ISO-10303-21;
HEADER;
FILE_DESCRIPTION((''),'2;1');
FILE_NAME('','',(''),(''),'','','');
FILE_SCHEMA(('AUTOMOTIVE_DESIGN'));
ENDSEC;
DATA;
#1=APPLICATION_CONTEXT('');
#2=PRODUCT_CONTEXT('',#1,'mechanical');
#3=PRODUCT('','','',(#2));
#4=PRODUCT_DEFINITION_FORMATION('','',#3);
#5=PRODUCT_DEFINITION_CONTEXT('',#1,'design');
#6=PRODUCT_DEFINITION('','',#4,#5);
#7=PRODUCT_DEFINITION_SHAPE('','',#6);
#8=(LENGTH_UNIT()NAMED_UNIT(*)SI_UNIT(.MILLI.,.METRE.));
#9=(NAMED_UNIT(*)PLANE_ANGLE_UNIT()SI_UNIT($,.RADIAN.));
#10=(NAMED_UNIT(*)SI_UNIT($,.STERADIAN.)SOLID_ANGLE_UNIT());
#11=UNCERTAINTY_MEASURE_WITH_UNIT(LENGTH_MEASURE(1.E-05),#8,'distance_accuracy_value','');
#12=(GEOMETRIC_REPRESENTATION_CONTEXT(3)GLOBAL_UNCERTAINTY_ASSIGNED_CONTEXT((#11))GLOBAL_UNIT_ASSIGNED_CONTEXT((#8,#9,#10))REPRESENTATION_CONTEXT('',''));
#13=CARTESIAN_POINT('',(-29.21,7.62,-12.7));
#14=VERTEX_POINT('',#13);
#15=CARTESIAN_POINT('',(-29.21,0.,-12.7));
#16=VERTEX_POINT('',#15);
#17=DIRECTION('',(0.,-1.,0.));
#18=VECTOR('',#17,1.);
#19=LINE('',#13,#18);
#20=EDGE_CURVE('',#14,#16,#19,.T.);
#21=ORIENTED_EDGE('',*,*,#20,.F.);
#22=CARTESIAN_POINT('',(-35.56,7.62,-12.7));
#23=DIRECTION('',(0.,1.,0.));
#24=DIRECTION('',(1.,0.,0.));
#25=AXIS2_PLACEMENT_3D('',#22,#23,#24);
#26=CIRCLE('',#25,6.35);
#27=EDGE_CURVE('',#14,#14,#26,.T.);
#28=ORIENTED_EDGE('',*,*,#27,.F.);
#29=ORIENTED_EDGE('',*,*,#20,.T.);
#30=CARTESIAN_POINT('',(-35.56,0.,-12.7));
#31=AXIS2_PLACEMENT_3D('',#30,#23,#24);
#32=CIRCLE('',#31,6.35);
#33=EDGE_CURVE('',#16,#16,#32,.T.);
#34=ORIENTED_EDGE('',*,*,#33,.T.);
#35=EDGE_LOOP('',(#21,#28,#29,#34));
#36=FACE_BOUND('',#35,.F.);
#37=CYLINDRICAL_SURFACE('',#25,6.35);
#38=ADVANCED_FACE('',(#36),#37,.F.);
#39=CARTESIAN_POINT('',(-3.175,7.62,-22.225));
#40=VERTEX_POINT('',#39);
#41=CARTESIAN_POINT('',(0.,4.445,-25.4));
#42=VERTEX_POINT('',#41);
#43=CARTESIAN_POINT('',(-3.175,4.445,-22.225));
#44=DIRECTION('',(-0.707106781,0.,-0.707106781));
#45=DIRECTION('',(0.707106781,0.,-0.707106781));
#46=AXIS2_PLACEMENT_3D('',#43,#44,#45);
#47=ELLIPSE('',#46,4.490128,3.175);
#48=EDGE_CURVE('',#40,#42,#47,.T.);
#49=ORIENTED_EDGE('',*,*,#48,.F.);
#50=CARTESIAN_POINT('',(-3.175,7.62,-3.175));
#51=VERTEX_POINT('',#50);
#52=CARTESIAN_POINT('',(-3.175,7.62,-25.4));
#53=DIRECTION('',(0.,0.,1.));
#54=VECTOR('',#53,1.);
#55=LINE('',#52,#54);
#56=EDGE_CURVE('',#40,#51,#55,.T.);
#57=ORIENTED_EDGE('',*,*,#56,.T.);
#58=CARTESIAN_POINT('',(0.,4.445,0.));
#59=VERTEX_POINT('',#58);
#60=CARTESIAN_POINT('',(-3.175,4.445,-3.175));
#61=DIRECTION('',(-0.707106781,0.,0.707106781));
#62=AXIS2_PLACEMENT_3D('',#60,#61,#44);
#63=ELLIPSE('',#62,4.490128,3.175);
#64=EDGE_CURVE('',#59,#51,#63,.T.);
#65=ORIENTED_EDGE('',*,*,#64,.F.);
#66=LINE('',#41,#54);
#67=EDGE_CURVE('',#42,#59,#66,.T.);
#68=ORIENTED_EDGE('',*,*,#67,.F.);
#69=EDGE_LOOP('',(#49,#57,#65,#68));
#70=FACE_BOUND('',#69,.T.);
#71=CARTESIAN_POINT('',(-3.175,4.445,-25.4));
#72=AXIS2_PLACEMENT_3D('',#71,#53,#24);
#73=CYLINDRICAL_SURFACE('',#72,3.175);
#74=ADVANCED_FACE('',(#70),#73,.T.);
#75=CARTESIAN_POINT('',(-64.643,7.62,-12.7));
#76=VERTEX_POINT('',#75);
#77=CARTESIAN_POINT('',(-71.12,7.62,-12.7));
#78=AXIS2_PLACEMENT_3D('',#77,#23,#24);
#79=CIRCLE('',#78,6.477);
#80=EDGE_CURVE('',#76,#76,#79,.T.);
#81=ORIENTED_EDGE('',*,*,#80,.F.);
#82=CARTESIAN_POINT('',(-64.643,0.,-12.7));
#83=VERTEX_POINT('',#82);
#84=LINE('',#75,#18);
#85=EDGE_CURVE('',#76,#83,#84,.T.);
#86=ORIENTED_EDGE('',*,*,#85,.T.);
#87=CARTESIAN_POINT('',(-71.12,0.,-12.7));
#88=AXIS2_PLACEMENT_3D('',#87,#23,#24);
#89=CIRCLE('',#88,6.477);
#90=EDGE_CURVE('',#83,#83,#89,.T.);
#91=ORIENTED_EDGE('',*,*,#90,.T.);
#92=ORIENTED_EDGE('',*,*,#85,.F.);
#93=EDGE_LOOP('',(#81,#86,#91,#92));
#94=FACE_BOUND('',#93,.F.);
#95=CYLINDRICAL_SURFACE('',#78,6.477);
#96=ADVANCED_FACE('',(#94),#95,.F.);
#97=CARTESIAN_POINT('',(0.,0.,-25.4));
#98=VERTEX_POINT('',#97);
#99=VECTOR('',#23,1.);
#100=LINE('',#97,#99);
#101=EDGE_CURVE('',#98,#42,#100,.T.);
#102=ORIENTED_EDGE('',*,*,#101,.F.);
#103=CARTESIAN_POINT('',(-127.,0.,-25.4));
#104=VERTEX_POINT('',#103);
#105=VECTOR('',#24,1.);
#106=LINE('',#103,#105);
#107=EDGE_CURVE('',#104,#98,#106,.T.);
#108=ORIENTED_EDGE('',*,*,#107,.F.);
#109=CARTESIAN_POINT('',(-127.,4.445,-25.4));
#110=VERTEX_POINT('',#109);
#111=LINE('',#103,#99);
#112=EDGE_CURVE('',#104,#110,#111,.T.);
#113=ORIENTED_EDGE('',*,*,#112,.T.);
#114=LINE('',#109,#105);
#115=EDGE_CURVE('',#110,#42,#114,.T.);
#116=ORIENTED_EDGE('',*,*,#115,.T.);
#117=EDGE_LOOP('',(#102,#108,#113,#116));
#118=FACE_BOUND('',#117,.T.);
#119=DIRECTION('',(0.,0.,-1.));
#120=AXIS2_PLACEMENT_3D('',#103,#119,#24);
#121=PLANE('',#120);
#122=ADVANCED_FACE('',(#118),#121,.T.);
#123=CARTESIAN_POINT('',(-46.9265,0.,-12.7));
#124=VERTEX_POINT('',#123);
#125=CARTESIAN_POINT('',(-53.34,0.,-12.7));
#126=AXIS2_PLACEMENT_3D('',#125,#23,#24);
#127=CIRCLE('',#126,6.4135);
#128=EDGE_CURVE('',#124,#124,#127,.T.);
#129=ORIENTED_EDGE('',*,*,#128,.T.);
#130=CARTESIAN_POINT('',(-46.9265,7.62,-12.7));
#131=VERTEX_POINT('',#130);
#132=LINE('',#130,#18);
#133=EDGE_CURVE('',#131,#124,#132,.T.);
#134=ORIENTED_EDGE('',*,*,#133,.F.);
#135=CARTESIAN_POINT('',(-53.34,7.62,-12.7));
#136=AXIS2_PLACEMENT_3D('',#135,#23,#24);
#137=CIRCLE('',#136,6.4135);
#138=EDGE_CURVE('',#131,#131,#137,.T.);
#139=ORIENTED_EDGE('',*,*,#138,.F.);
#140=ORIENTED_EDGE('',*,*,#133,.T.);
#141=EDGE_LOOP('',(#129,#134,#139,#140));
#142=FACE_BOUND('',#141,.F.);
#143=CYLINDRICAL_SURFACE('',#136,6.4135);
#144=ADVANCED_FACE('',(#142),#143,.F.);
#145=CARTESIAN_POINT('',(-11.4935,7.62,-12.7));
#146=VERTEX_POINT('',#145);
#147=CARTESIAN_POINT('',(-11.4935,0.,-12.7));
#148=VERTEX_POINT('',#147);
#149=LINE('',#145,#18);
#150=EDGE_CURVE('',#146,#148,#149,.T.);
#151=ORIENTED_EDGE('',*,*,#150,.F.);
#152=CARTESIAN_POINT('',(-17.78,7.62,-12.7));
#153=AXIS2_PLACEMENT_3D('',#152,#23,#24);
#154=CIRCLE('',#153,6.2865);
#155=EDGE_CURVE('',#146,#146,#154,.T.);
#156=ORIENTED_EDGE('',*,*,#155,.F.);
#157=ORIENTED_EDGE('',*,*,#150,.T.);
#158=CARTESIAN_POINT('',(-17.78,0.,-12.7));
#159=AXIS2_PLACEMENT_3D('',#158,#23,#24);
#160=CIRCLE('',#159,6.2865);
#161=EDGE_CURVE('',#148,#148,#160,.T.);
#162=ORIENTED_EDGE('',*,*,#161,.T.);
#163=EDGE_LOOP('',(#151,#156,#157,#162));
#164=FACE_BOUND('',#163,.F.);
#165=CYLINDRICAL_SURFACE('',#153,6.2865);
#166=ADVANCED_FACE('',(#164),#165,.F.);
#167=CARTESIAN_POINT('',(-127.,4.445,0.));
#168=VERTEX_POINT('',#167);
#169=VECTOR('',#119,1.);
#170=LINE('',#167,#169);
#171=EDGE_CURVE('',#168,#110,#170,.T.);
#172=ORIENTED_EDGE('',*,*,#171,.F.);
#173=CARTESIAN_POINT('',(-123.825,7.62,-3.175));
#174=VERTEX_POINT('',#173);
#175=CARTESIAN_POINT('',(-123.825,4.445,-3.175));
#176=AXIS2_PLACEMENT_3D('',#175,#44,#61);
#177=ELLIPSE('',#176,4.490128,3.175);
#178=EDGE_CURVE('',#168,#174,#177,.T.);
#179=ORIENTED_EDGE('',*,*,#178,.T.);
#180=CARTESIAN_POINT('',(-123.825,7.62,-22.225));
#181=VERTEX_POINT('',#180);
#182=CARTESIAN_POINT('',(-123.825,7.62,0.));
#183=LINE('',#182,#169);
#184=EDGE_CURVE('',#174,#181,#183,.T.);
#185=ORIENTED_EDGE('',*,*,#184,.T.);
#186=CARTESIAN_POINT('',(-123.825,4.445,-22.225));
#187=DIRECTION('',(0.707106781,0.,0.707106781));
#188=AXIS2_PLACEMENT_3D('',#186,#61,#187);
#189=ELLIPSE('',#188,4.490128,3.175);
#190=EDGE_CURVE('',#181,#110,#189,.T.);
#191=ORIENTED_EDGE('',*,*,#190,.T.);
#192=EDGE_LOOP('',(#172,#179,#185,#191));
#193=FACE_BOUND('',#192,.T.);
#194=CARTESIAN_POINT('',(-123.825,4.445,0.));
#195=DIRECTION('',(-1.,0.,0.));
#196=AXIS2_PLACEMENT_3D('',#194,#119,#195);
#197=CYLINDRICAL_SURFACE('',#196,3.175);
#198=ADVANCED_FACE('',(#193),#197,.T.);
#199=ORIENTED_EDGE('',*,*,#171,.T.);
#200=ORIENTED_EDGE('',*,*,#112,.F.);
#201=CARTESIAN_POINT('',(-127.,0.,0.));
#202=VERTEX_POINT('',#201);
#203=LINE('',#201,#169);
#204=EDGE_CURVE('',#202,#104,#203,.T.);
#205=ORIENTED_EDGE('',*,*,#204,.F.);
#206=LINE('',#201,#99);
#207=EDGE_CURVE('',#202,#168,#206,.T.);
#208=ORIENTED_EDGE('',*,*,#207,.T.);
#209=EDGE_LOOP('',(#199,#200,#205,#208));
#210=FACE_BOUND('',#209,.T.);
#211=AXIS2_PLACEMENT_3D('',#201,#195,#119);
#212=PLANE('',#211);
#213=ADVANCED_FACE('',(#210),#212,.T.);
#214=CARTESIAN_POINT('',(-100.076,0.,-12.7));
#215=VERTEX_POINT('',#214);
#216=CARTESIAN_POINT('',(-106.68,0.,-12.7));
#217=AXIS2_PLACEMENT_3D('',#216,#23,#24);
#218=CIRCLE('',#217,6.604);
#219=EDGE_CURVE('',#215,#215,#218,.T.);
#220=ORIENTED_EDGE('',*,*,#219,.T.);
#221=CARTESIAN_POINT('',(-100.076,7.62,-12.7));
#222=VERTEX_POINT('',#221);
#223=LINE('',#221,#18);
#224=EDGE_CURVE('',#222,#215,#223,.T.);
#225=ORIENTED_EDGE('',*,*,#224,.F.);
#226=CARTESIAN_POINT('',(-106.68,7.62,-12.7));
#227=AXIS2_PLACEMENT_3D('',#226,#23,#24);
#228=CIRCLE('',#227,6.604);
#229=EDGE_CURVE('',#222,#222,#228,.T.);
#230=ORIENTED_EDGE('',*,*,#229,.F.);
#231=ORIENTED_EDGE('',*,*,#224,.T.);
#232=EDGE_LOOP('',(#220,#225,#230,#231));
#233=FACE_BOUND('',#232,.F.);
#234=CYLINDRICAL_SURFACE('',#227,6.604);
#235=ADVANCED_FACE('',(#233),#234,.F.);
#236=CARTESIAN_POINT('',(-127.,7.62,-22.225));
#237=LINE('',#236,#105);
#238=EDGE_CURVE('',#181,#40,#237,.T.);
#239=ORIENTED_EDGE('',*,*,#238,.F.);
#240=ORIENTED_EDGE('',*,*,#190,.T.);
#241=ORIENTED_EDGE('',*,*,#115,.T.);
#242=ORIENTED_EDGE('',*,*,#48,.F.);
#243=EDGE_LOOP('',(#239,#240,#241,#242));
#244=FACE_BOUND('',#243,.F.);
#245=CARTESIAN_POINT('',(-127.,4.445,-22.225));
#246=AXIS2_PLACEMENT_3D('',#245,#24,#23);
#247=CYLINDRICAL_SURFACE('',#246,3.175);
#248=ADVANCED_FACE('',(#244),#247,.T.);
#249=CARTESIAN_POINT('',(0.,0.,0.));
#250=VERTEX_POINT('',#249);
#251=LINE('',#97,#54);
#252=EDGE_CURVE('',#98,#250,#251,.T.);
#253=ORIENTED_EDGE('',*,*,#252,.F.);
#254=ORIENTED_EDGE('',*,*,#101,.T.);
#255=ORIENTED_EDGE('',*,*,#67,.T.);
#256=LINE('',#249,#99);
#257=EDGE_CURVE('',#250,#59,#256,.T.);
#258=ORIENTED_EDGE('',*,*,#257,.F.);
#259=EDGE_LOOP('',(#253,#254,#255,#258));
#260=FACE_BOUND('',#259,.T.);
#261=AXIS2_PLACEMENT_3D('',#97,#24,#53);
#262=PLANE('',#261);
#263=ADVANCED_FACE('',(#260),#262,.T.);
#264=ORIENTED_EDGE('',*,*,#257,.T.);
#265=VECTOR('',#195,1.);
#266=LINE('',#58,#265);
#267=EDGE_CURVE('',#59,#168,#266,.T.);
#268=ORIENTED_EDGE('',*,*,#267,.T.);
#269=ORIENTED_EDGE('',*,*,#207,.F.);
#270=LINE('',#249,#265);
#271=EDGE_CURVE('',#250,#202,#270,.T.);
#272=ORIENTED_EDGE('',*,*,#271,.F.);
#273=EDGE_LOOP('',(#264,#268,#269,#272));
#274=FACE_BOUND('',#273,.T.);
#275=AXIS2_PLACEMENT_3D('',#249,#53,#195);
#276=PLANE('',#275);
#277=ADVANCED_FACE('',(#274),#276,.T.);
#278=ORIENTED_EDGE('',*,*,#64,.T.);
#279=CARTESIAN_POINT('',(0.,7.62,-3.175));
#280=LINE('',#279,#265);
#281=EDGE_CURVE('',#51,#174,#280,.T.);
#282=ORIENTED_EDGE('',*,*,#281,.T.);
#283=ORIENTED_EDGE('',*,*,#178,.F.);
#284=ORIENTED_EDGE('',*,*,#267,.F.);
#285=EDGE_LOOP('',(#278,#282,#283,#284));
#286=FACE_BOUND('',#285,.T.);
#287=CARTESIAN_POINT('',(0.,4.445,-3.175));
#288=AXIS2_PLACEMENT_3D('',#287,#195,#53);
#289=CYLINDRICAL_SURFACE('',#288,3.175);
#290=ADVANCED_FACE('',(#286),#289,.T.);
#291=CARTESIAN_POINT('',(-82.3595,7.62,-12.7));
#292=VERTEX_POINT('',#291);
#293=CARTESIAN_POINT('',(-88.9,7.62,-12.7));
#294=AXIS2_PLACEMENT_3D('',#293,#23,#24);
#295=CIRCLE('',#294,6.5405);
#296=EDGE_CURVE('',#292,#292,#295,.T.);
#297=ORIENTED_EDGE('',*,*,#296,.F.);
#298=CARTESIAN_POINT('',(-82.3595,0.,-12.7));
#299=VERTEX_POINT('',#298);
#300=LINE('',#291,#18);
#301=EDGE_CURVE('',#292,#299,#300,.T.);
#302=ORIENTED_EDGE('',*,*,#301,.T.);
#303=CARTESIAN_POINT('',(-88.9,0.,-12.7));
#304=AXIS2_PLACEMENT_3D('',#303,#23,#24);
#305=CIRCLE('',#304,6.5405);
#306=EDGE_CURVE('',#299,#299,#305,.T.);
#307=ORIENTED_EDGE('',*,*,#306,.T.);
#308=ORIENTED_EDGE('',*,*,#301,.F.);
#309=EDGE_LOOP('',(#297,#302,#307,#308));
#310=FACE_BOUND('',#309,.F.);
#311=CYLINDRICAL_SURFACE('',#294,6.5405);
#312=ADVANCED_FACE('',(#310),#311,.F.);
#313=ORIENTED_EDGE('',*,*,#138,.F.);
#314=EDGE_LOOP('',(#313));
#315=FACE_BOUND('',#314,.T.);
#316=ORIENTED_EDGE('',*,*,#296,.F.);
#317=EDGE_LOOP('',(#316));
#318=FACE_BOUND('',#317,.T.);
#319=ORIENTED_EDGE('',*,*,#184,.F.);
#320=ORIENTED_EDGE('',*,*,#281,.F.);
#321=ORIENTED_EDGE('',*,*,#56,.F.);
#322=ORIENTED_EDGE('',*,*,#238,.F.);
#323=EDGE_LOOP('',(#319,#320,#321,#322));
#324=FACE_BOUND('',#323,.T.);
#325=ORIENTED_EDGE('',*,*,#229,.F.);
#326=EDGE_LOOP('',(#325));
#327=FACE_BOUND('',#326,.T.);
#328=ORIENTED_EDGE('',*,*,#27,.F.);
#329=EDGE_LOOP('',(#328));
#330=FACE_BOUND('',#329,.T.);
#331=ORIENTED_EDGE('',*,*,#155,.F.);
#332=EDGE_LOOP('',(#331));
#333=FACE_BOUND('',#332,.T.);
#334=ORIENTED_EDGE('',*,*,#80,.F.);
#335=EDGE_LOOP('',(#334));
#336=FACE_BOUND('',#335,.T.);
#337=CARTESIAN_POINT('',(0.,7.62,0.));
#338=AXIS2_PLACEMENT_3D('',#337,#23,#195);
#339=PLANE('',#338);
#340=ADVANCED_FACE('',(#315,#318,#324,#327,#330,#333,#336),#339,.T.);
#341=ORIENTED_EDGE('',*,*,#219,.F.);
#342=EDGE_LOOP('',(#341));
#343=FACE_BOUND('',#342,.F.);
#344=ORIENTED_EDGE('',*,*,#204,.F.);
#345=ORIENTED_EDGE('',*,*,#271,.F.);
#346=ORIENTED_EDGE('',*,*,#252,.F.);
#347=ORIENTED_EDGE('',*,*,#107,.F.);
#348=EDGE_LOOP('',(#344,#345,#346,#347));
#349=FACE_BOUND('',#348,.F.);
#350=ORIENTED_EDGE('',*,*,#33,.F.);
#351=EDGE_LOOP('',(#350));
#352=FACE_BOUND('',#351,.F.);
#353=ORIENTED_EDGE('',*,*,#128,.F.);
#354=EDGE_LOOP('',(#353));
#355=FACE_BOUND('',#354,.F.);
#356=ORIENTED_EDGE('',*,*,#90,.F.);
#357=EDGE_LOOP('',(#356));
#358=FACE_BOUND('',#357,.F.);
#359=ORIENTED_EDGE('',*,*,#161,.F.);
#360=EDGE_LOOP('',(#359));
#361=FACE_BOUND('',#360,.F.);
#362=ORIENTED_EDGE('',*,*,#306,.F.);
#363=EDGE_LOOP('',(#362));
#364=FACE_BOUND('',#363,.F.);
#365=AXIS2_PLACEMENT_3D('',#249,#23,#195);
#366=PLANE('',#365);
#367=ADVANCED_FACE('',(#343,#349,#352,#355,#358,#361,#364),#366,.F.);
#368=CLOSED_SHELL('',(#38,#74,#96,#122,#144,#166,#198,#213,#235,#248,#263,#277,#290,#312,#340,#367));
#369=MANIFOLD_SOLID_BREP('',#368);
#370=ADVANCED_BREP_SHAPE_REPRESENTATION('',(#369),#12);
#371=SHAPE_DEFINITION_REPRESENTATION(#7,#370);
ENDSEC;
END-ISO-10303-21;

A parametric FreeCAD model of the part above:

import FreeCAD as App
import Part
import Sketcher
from FreeCAD import Vector
Q = App.Units.Quantity


def edges_at(feature, points):
    """Names of the edges that pass closest to the given points."""
    edges = feature.Shape.Edges
    near = lambda p: min(range(len(edges)), key=lambda i: edges[i].distToShape(Part.Vertex(*p))[0])
    return sorted({f"Edge{near(p) + 1}" for p in points})

doc = App.newDocument("Part")
params = doc.addObject("Spreadsheet::Sheet", "Params")
for row, (alias, value) in enumerate([
    ("sketch1_width", "5 in"),
    ("sketch1_height", "1 in"),
    ("pad1_length", "0.3 in"),
    ("sketch2_diameter", "0.5 in"),
    ("sketch2_diameter2", "0.51 in"),
    ("sketch2_diameter3", "0.52 in"),
    ("sketch2_diameter4", "0.495 in"),
    ("sketch2_diameter5", "0.505 in"),
    ("fillet_radius", "0.125 in"),
], start=1):
    params.set(f"A{row}", alias)
    params.set(f"B{row}", "=" + value)
    params.setAlias(f"B{row}", alias)

body = doc.addObject("PartDesign::Body", "Body")

# Sketch on XZ plane
sketch1 = body.newObject("Sketcher::SketchObject", "Sketch")
sketch1.AttachmentSupport = (doc.getObject("XZ_Plane"), [""])
sketch1.MapMode = "FlatFace"
sketch1.addGeometry(Part.LineSegment(Vector(-127, 0, 0), Vector(0, 0, 0)), False)
sketch1.addGeometry(Part.LineSegment(Vector(0, 0, 0), Vector(0, -25.4, 0)), False)
sketch1.addGeometry(Part.LineSegment(Vector(0, -25.4, 0), Vector(-127, -25.4, 0)), False)
sketch1.addGeometry(Part.LineSegment(Vector(-127, -25.4, 0), Vector(-127, 0, 0)), False)
sketch1.addConstraint(Sketcher.Constraint("Coincident", 0, 2, 1, 1))
sketch1.addConstraint(Sketcher.Constraint("Coincident", 1, 2, 2, 1))
sketch1.addConstraint(Sketcher.Constraint("Coincident", 2, 2, 3, 1))
sketch1.addConstraint(Sketcher.Constraint("Coincident", 3, 2, 0, 1))
sketch1.addConstraint(Sketcher.Constraint("Horizontal", 0))
sketch1.addConstraint(Sketcher.Constraint("Vertical", 1))
sketch1.addConstraint(Sketcher.Constraint("Horizontal", 2))
sketch1.addConstraint(Sketcher.Constraint("Vertical", 3))
sketch1.addConstraint(Sketcher.Constraint("Coincident", 0, 2, -1, 1))
sketch1.addConstraint(Sketcher.Constraint("DistanceX", 0, 1, 0, 2, Q("5 in")))
sketch1.addConstraint(Sketcher.Constraint("DistanceY", 1, 2, 1, 1, Q("1 in")))
sketch1.setExpression("Constraints[9]", "Params.sketch1_width")
sketch1.setExpression("Constraints[10]", "Params.sketch1_height")
pad1 = body.newObject("PartDesign::Pad", "Pad")
pad1.Profile = sketch1
pad1.setExpression("Length", "Params.pad1_length")
pad1.Reversed = True

# Sketch on XZ plane
sketch2 = body.newObject("Sketcher::SketchObject", "Sketch001")
sketch2.AttachmentSupport = (doc.getObject("XZ_Plane"), [""])
sketch2.MapMode = "FlatFace"
sketch2.AttachmentOffset = App.Placement(Vector(0, 0, -0.3 * 25.4), App.Rotation())
sketch2.addGeometry(Part.Circle(Vector(-17.78, -12.7, 0), Vector(0, 0, 1), 6.2865), False)
sketch2.addGeometry(Part.Circle(Vector(-35.56, -12.7, 0), Vector(0, 0, 1), 6.35), False)
sketch2.addGeometry(Part.Circle(Vector(-53.34, -12.7, 0), Vector(0, 0, 1), 6.4135), False)
sketch2.addGeometry(Part.Circle(Vector(-71.12, -12.7, 0), Vector(0, 0, 1), 6.477), False)
sketch2.addGeometry(Part.Circle(Vector(-88.9, -12.7, 0), Vector(0, 0, 1), 6.5405), False)
sketch2.addGeometry(Part.Circle(Vector(-106.68, -12.7, 0), Vector(0, 0, 1), 6.604), False)
sketch2.addConstraint(Sketcher.Constraint("Horizontal", 0, 3, 1, 3))
sketch2.addConstraint(Sketcher.Constraint("Horizontal", 1, 3, 2, 3))
sketch2.addConstraint(Sketcher.Constraint("Horizontal", 2, 3, 3, 3))
sketch2.addConstraint(Sketcher.Constraint("Horizontal", 3, 3, 4, 3))
sketch2.addConstraint(Sketcher.Constraint("Horizontal", 4, 3, 5, 3))
sketch2.addConstraint(Sketcher.Constraint("Diameter", 1, Q("0.5 in")))
sketch2.addConstraint(Sketcher.Constraint("Diameter", 3, Q("0.51 in")))
sketch2.addConstraint(Sketcher.Constraint("Diameter", 5, Q("0.52 in")))
sketch2.addConstraint(Sketcher.Constraint("Diameter", 0, Q("0.495 in")))
sketch2.addConstraint(Sketcher.Constraint("Diameter", 2, Q("0.505 in")))
sketch2.addConstraint(Sketcher.Constraint("Diameter", 4, Q("0.515 in")))
sketch2.addConstraint(Sketcher.Constraint("DistanceX", 0, 3, -1, 1, Q("0.7 in")))
sketch2.addConstraint(Sketcher.Constraint("DistanceY", 0, 3, -1, 1, Q("0.5 in")))
sketch2.addConstraint(Sketcher.Constraint("DistanceX", 1, 3, 0, 3, Q("0.7 in")))
sketch2.addConstraint(Sketcher.Constraint("DistanceX", 2, 3, 1, 3, Q("0.7 in")))
sketch2.addConstraint(Sketcher.Constraint("DistanceX", 3, 3, 2, 3, Q("0.7 in")))
sketch2.addConstraint(Sketcher.Constraint("DistanceX", 4, 3, 3, 3, Q("0.7 in")))
sketch2.addConstraint(Sketcher.Constraint("DistanceX", 5, 3, 4, 3, Q("0.7 in")))
sketch2.setExpression("Constraints[5]", "Params.sketch2_diameter")
sketch2.setExpression("Constraints[6]", "Params.sketch2_diameter2")
sketch2.setExpression("Constraints[7]", "Params.sketch2_diameter3")
sketch2.setExpression("Constraints[8]", "Params.sketch2_diameter4")
sketch2.setExpression("Constraints[9]", "Params.sketch2_diameter5")
pocket1 = body.newObject("PartDesign::Pocket", "Pocket")
pocket1.Profile = sketch2
pocket1.Type = "ThroughAll"
pocket1.Reversed = True
doc.recompute()

fillet = body.newObject("PartDesign::Fillet", "Fillet")
fillet.Base = (pocket1, edges_at(pocket1, [
    (-63.5, 7.62, 0),
    (-63.5, 7.62, -25.4),
    (0, 7.62, -12.7),
    (-127, 7.62, -12.7),
]))
fillet.setExpression("Radius", "Params.fillet_radius")

doc.recompute()
